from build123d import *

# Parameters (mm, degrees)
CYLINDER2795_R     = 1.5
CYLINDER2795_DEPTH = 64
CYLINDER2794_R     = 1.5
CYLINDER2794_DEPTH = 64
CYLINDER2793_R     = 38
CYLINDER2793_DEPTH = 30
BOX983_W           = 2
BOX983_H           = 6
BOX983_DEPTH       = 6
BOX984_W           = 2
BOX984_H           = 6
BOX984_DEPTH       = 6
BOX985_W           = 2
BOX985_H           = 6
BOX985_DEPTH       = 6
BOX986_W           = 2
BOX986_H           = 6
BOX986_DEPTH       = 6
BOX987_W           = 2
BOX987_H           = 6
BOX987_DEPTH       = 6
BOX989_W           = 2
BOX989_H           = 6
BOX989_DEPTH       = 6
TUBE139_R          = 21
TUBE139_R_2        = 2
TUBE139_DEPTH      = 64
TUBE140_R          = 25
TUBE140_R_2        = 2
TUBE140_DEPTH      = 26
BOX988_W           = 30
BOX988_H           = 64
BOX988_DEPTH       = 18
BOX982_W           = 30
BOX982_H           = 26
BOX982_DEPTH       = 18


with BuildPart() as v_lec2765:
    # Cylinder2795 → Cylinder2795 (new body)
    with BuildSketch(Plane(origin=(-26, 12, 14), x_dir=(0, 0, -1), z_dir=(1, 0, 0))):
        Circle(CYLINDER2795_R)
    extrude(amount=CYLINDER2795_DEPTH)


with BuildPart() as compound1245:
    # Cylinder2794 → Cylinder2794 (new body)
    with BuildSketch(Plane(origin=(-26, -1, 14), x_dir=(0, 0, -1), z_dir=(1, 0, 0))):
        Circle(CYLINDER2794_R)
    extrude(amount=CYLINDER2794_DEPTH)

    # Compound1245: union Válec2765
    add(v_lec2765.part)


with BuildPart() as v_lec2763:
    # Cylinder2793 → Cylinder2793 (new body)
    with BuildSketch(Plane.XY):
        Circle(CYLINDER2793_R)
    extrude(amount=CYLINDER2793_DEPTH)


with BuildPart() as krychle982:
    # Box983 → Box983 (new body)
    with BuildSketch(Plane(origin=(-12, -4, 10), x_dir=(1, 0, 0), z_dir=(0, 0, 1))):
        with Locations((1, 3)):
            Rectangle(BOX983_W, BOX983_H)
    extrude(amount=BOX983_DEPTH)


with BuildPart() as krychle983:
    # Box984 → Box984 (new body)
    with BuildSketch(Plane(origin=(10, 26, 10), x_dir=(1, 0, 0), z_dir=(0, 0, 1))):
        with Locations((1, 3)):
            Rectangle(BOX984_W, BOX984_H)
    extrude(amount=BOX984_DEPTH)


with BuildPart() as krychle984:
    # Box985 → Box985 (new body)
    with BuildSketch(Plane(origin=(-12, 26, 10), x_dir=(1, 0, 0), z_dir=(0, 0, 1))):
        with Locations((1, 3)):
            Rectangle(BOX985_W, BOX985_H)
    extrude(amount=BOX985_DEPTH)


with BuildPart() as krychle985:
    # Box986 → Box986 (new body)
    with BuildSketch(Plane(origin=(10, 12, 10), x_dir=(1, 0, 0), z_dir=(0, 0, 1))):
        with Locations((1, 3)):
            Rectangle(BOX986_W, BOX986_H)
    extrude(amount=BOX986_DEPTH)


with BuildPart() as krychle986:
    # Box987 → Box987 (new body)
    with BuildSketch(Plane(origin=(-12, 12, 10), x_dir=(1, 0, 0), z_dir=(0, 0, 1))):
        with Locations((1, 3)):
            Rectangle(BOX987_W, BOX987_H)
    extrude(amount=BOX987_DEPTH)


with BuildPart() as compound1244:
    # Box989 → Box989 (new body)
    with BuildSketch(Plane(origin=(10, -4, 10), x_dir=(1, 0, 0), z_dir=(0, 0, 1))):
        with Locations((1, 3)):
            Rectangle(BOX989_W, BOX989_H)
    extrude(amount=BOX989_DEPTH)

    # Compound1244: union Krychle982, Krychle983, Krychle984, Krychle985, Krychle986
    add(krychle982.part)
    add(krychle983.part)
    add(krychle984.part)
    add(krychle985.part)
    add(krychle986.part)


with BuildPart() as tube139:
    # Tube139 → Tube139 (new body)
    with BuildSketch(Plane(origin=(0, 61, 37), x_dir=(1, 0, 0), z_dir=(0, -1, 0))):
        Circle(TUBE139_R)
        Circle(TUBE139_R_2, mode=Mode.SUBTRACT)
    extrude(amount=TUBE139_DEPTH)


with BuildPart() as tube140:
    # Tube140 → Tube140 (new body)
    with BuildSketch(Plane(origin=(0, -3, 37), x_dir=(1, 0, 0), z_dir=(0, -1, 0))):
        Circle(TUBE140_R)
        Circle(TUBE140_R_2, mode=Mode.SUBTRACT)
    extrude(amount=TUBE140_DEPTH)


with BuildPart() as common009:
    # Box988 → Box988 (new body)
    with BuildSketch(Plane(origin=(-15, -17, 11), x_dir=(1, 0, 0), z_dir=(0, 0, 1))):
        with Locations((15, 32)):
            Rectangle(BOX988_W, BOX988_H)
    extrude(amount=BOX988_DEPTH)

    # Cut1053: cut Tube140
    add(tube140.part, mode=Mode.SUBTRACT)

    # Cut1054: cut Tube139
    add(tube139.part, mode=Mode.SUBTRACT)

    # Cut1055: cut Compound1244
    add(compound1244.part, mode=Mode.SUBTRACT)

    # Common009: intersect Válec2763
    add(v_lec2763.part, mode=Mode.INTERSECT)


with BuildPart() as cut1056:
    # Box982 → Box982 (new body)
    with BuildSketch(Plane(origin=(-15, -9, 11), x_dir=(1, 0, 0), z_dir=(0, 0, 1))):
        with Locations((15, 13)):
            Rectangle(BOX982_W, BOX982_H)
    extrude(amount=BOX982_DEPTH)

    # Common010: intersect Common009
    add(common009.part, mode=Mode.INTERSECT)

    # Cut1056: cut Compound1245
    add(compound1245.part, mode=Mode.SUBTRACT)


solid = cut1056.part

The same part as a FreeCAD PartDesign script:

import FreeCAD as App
import Part
import Sketcher

doc = App.newDocument("Part")
body = doc.addObject("PartDesign::Body", "Body")

# Sketch on YZ plane
sketch1 = body.newObject("Sketcher::SketchObject", "Sketch")
sketch1.AttachmentSupport = (doc.getObject("YZ_Plane"), [""])
sketch1.MapMode = "FlatFace"
sketch1.AttachmentOffset = App.Placement(App.Vector(0, 0, -26), App.Rotation())
sketch1.addGeometry(Part.Circle(App.Vector(12, 14, 0), App.Vector(0, 0, 1), 1.5), False)
sketch1.addConstraint(Sketcher.Constraint("Diameter", 0, 3.0))
sketch1.addConstraint(Sketcher.Constraint("DistanceX", -1, 1, 0, 3, 12.0))
sketch1.addConstraint(Sketcher.Constraint("DistanceY", -1, 1, 0, 3, 14.0))
pad1 = body.newObject("PartDesign::Pad", "Pad")
pad1.Profile = sketch1
pad1.Length = 64
body2 = doc.addObject("PartDesign::Body", "Body001")
body2.AllowCompound = True

# Sketch on YZ plane
sketch2 = body2.newObject("Sketcher::SketchObject", "Sketch001")
sketch2.AttachmentSupport = (doc.getObject("YZ_Plane001"), [""])
sketch2.MapMode = "FlatFace"
sketch2.AttachmentOffset = App.Placement(App.Vector(0, 0, -26), App.Rotation())
sketch2.addGeometry(Part.Circle(App.Vector(-1, 14, 0), App.Vector(0, 0, 1), 1.5), False)
sketch2.addConstraint(Sketcher.Constraint("Diameter", 0, 3.0))
sketch2.addConstraint(Sketcher.Constraint("DistanceX", 0, 3, -1, 1, 1.0))
sketch2.addConstraint(Sketcher.Constraint("DistanceY", -1, 1, 0, 3, 14.0))
pad2 = body2.newObject("PartDesign::Pad", "Pad001")
pad2.Profile = sketch2
pad2.Length = 64
doc.recompute()

boolean = body2.newObject("PartDesign::Boolean", "Boolean")
boolean.Type = "Fuse"
boolean.addObjects([body])
body3 = doc.addObject("PartDesign::Body", "Body002")

# Sketch on XY plane
sketch3 = body3.newObject("Sketcher::SketchObject", "Sketch002")
sketch3.AttachmentSupport = (doc.getObject("XY_Plane002"), [""])
sketch3.MapMode = "FlatFace"
sketch3.addGeometry(Part.Circle(App.Vector(0, 0, 0), App.Vector(0, 0, 1), 38), False)
sketch3.addConstraint(Sketcher.Constraint("Coincident", 0, 3, -1, 1))
sketch3.addConstraint(Sketcher.Constraint("Diameter", 0, 76.0))
pad3 = body3.newObject("PartDesign::Pad", "Pad002")
pad3.Profile = sketch3
pad3.Length = 30
body4 = doc.addObject("PartDesign::Body", "Body003")

# Sketch on XY plane
sketch4 = body4.newObject("Sketcher::SketchObject", "Sketch003")
sketch4.AttachmentSupport = (doc.getObject("XY_Plane003"), [""])
sketch4.MapMode = "FlatFace"
sketch4.AttachmentOffset = App.Placement(App.Vector(0, 0, 10), App.Rotation())
sketch4.addGeometry(Part.LineSegment(App.Vector(-12, 2, 0), App.Vector(-12, -4, 0)), False)
sketch4.addGeometry(Part.LineSegment(App.Vector(-12, -4, 0), App.Vector(-10, -4, 0)), False)
sketch4.addGeometry(Part.LineSegment(App.Vector(-10, -4, 0), App.Vector(-10, 2, 0)), False)
sketch4.addGeometry(Part.LineSegment(App.Vector(-10, 2, 0), App.Vector(-12, 2, 0)), False)
sketch4.addConstraint(Sketcher.Constraint("Coincident", 0, 2, 1, 1))
sketch4.addConstraint(Sketcher.Constraint("Coincident", 1, 2, 2, 1))
sketch4.addConstraint(Sketcher.Constraint("Coincident", 2, 2, 3, 1))
sketch4.addConstraint(Sketcher.Constraint("Coincident", 3, 2, 0, 1))
sketch4.addConstraint(Sketcher.Constraint("Vertical", 0))
sketch4.addConstraint(Sketcher.Constraint("Horizontal", 1))
sketch4.addConstraint(Sketcher.Constraint("Vertical", 2))
sketch4.addConstraint(Sketcher.Constraint("Horizontal", 3))
sketch4.addConstraint(Sketcher.Constraint("DistanceX", 1, 1, 1, 2, 2.0))
sketch4.addConstraint(Sketcher.Constraint("DistanceY", 0, 2, 0, 1, 6.0))
sketch4.addConstraint(Sketcher.Constraint("DistanceX", 0, 2, -1, 1, 12.0))
sketch4.addConstraint(Sketcher.Constraint("DistanceY", 0, 2, -1, 1, 4.0))
pad4 = body4.newObject("PartDesign::Pad", "Pad003")
pad4.Profile = sketch4
pad4.Length = 6
body5 = doc.addObject("PartDesign::Body", "Body004")

# Sketch on XY plane
sketch5 = body5.newObject("Sketcher::SketchObject", "Sketch004")
sketch5.AttachmentSupport = (doc.getObject("XY_Plane004"), [""])
sketch5.MapMode = "FlatFace"
sketch5.AttachmentOffset = App.Placement(App.Vector(0, 0, 10), App.Rotation())
sketch5.addGeometry(Part.LineSegment(App.Vector(10, 32, 0), App.Vector(10, 26, 0)), False)
sketch5.addGeometry(Part.LineSegment(App.Vector(10, 26, 0), App.Vector(12, 26, 0)), False)
sketch5.addGeometry(Part.LineSegment(App.Vector(12, 26, 0), App.Vector(12, 32, 0)), False)
sketch5.addGeometry(Part.LineSegment(App.Vector(12, 32, 0), App.Vector(10, 32, 0)), False)
sketch5.addConstraint(Sketcher.Constraint("Coincident", 0, 2, 1, 1))
sketch5.addConstraint(Sketcher.Constraint("Coincident", 1, 2, 2, 1))
sketch5.addConstraint(Sketcher.Constraint("Coincident", 2, 2, 3, 1))
sketch5.addConstraint(Sketcher.Constraint("Coincident", 3, 2, 0, 1))
sketch5.addConstraint(Sketcher.Constraint("Vertical", 0))
sketch5.addConstraint(Sketcher.Constraint("Horizontal", 1))
sketch5.addConstraint(Sketcher.Constraint("Vertical", 2))
sketch5.addConstraint(Sketcher.Constraint("Horizontal", 3))
sketch5.addConstraint(Sketcher.Constraint("DistanceX", 1, 1, 1, 2, 2.0))
sketch5.addConstraint(Sketcher.Constraint("DistanceY", 0, 2, 0, 1, 6.0))
sketch5.addConstraint(Sketcher.Constraint("DistanceX", -1, 1, 0, 2, 10.0))
sketch5.addConstraint(Sketcher.Constraint("DistanceY", -1, 1, 0, 2, 26.0))
pad5 = body5.newObject("PartDesign::Pad", "Pad004")
pad5.Profile = sketch5
pad5.Length = 6
body6 = doc.addObject("PartDesign::Body", "Body005")

# Sketch on XY plane
sketch6 = body6.newObject("Sketcher::SketchObject", "Sketch005")
sketch6.AttachmentSupport = (doc.getObject("XY_Plane005"), [""])
sketch6.MapMode = "FlatFace"
sketch6.AttachmentOffset = App.Placement(App.Vector(0, 0, 10), App.Rotation())
sketch6.addGeometry(Part.LineSegment(App.Vector(-12, 32, 0), App.Vector(-12, 26, 0)), False)
sketch6.addGeometry(Part.LineSegment(App.Vector(-12, 26, 0), App.Vector(-10, 26, 0)), False)
sketch6.addGeometry(Part.LineSegment(App.Vector(-10, 26, 0), App.Vector(-10, 32, 0)), False)
sketch6.addGeometry(Part.LineSegment(App.Vector(-10, 32, 0), App.Vector(-12, 32, 0)), False)
sketch6.addConstraint(Sketcher.Constraint("Coincident", 0, 2, 1, 1))
sketch6.addConstraint(Sketcher.Constraint("Coincident", 1, 2, 2, 1))
sketch6.addConstraint(Sketcher.Constraint("Coincident", 2, 2, 3, 1))
sketch6.addConstraint(Sketcher.Constraint("Coincident", 3, 2, 0, 1))
sketch6.addConstraint(Sketcher.Constraint("Vertical", 0))
sketch6.addConstraint(Sketcher.Constraint("Horizontal", 1))
sketch6.addConstraint(Sketcher.Constraint("Vertical", 2))
sketch6.addConstraint(Sketcher.Constraint("Horizontal", 3))
sketch6.addConstraint(Sketcher.Constraint("DistanceX", 1, 1, 1, 2, 2.0))
sketch6.addConstraint(Sketcher.Constraint("DistanceY", 0, 2, 0, 1, 6.0))
sketch6.addConstraint(Sketcher.Constraint("DistanceX", 0, 2, -1, 1, 12.0))
sketch6.addConstraint(Sketcher.Constraint("DistanceY", -1, 1, 0, 2, 26.0))
pad6 = body6.newObject("PartDesign::Pad", "Pad005")
pad6.Profile = sketch6
pad6.Length = 6
body7 = doc.addObject("PartDesign::Body", "Body006")

# Sketch on XY plane
sketch7 = body7.newObject("Sketcher::SketchObject", "Sketch006")
sketch7.AttachmentSupport = (doc.getObject("XY_Plane006"), [""])
sketch7.MapMode = "FlatFace"
sketch7.AttachmentOffset = App.Placement(App.Vector(0, 0, 10), App.Rotation())
sketch7.addGeometry(Part.LineSegment(App.Vector(10, 18, 0), App.Vector(10, 12, 0)), False)
sketch7.addGeometry(Part.LineSegment(App.Vector(10, 12, 0), App.Vector(12, 12, 0)), False)
sketch7.addGeometry(Part.LineSegment(App.Vector(12, 12, 0), App.Vector(12, 18, 0)), False)
sketch7.addGeometry(Part.LineSegment(App.Vector(12, 18, 0), App.Vector(10, 18, 0)), False)
sketch7.addConstraint(Sketcher.Constraint("Coincident", 0, 2, 1, 1))
sketch7.addConstraint(Sketcher.Constraint("Coincident", 1, 2, 2, 1))
sketch7.addConstraint(Sketcher.Constraint("Coincident", 2, 2, 3, 1))
sketch7.addConstraint(Sketcher.Constraint("Coincident", 3, 2, 0, 1))
sketch7.addConstraint(Sketcher.Constraint("Vertical", 0))
sketch7.addConstraint(Sketcher.Constraint("Horizontal", 1))
sketch7.addConstraint(Sketcher.Constraint("Vertical", 2))
sketch7.addConstraint(Sketcher.Constraint("Horizontal", 3))
sketch7.addConstraint(Sketcher.Constraint("DistanceX", 1, 1, 1, 2, 2.0))
sketch7.addConstraint(Sketcher.Constraint("DistanceY", 0, 2, 0, 1, 6.0))
sketch7.addConstraint(Sketcher.Constraint("DistanceX", -1, 1, 0, 2, 10.0))
sketch7.addConstraint(Sketcher.Constraint("DistanceY", -1, 1, 0, 2, 12.0))
pad7 = body7.newObject("PartDesign::Pad", "Pad006")
pad7.Profile = sketch7
pad7.Length = 6
body8 = doc.addObject("PartDesign::Body", "Body007")

# Sketch on XY plane
sketch8 = body8.newObject("Sketcher::SketchObject", "Sketch007")
sketch8.AttachmentSupport = (doc.getObject("XY_Plane007"), [""])
sketch8.MapMode = "FlatFace"
sketch8.AttachmentOffset = App.Placement(App.Vector(0, 0, 10), App.Rotation())
sketch8.addGeometry(Part.LineSegment(App.Vector(-12, 18, 0), App.Vector(-12, 12, 0)), False)
sketch8.addGeometry(Part.LineSegment(App.Vector(-12, 12, 0), App.Vector(-10, 12, 0)), False)
sketch8.addGeometry(Part.LineSegment(App.Vector(-10, 12, 0), App.Vector(-10, 18, 0)), False)
sketch8.addGeometry(Part.LineSegment(App.Vector(-10, 18, 0), App.Vector(-12, 18, 0)), False)
sketch8.addConstraint(Sketcher.Constraint("Coincident", 0, 2, 1, 1))
sketch8.addConstraint(Sketcher.Constraint("Coincident", 1, 2, 2, 1))
sketch8.addConstraint(Sketcher.Constraint("Coincident", 2, 2, 3, 1))
sketch8.addConstraint(Sketcher.Constraint("Coincident", 3, 2, 0, 1))
sketch8.addConstraint(Sketcher.Constraint("Vertical", 0))
sketch8.addConstraint(Sketcher.Constraint("Horizontal", 1))
sketch8.addConstraint(Sketcher.Constraint("Vertical", 2))
sketch8.addConstraint(Sketcher.Constraint("Horizontal", 3))
sketch8.addConstraint(Sketcher.Constraint("DistanceX", 1, 1, 1, 2, 2.0))
sketch8.addConstraint(Sketcher.Constraint("DistanceY", 0, 2, 0, 1, 6.0))
sketch8.addConstraint(Sketcher.Constraint("DistanceX", 0, 2, -1, 1, 12.0))
sketch8.addConstraint(Sketcher.Constraint("DistanceY", -1, 1, 0, 2, 12.0))
pad8 = body8.newObject("PartDesign::Pad", "Pad007")
pad8.Profile = sketch8
pad8.Length = 6
body9 = doc.addObject("PartDesign::Body", "Body008")
body9.AllowCompound = True

# Sketch on XY plane
sketch9 = body9.newObject("Sketcher::SketchObject", "Sketch008")
sketch9.AttachmentSupport = (doc.getObject("XY_Plane008"), [""])
sketch9.MapMode = "FlatFace"
sketch9.AttachmentOffset = App.Placement(App.Vector(0, 0, 10), App.Rotation())
sketch9.addGeometry(Part.LineSegment(App.Vector(10, 2, 0), App.Vector(10, -4, 0)), False)
sketch9.addGeometry(Part.LineSegment(App.Vector(10, -4, 0), App.Vector(12, -4, 0)), False)
sketch9.addGeometry(Part.LineSegment(App.Vector(12, -4, 0), App.Vector(12, 2, 0)), False)
sketch9.addGeometry(Part.LineSegment(App.Vector(12, 2, 0), App.Vector(10, 2, 0)), False)
sketch9.addConstraint(Sketcher.Constraint("Coincident", 0, 2, 1, 1))
sketch9.addConstraint(Sketcher.Constraint("Coincident", 1, 2, 2, 1))
sketch9.addConstraint(Sketcher.Constraint("Coincident", 2, 2, 3, 1))
sketch9.addConstraint(Sketcher.Constraint("Coincident", 3, 2, 0, 1))
sketch9.addConstraint(Sketcher.Constraint("Vertical", 0))
sketch9.addConstraint(Sketcher.Constraint("Horizontal", 1))
sketch9.addConstraint(Sketcher.Constraint("Vertical", 2))
sketch9.addConstraint(Sketcher.Constraint("Horizontal", 3))
sketch9.addConstraint(Sketcher.Constraint("DistanceX", 1, 1, 1, 2, 2.0))
sketch9.addConstraint(Sketcher.Constraint("DistanceY", 0, 2, 0, 1, 6.0))
sketch9.addConstraint(Sketcher.Constraint("DistanceX", -1, 1, 0, 2, 10.0))
sketch9.addConstraint(Sketcher.Constraint("DistanceY", 0, 2, -1, 1, 4.0))
pad9 = body9.newObject("PartDesign::Pad", "Pad008")
pad9.Profile = sketch9
pad9.Length = 6
doc.recompute()

boolean2 = body9.newObject("PartDesign::Boolean", "Boolean001")
boolean2.Type = "Fuse"
boolean2.addObjects([body4])
doc.recompute()

boolean3 = body9.newObject("PartDesign::Boolean", "Boolean002")
boolean3.Type = "Fuse"
boolean3.addObjects([body5])
doc.recompute()

boolean4 = body9.newObject("PartDesign::Boolean", "Boolean003")
boolean4.Type = "Fuse"
boolean4.addObjects([body6])
doc.recompute()

boolean5 = body9.newObject("PartDesign::Boolean", "Boolean004")
boolean5.Type = "Fuse"
boolean5.addObjects([body7])
doc.recompute()

boolean6 = body9.newObject("PartDesign::Boolean", "Boolean005")
boolean6.Type = "Fuse"
boolean6.addObjects([body8])
body10 = doc.addObject("PartDesign::Body", "Body009")

# Sketch on XZ plane
sketch10 = body10.newObject("Sketcher::SketchObject", "Sketch009")
sketch10.AttachmentSupport = (doc.getObject("XZ_Plane009"), [""])
sketch10.MapMode = "FlatFace"
sketch10.AttachmentOffset = App.Placement(App.Vector(0, 0, -61), App.Rotation())
sketch10.addGeometry(Part.Circle(App.Vector(0, 37, 0), App.Vector(0, 0, 1), 21), False)
sketch10.addGeometry(Part.Circle(App.Vector(0, 37, 0), App.Vector(0, 0, 1), 2), False)
sketch10.addConstraint(Sketcher.Constraint("Coincident", 1, 3, 0, 3))
sketch10.addConstraint(Sketcher.Constraint("PointOnObject", 0, 3, -2))
sketch10.addConstraint(Sketcher.Constraint("Diameter", 0, 42.0))
sketch10.addConstraint(Sketcher.Constraint("Diameter", 1, 4.0))
sketch10.addConstraint(Sketcher.Constraint("DistanceY", -1, 1, 0, 3, 37.0))
pad10 = body10.newObject("PartDesign::Pad", "Pad009")
pad10.Profile = sketch10
pad10.Length = 64
body11 = doc.addObject("PartDesign::Body", "Body010")

# Sketch on XZ plane
sketch11 = body11.newObject("Sketcher::SketchObject", "Sketch010")
sketch11.AttachmentSupport = (doc.getObject("XZ_Plane010"), [""])
sketch11.MapMode = "FlatFace"
sketch11.AttachmentOffset = App.Placement(App.Vector(0, 0, 3), App.Rotation())
sketch11.addGeometry(Part.Circle(App.Vector(0, 37, 0), App.Vector(0, 0, 1), 25), False)
sketch11.addGeometry(Part.Circle(App.Vector(0, 37, 0), App.Vector(0, 0, 1), 2), False)
sketch11.addConstraint(Sketcher.Constraint("Coincident", 1, 3, 0, 3))
sketch11.addConstraint(Sketcher.Constraint("PointOnObject", 0, 3, -2))
sketch11.addConstraint(Sketcher.Constraint("Diameter", 0, 50.0))
sketch11.addConstraint(Sketcher.Constraint("Diameter", 1, 4.0))
sketch11.addConstraint(Sketcher.Constraint("DistanceY", -1, 1, 0, 3, 37.0))
pad11 = body11.newObject("PartDesign::Pad", "Pad010")
pad11.Profile = sketch11
pad11.Length = 26
body12 = doc.addObject("PartDesign::Body", "Body011")

# Sketch on XY plane
sketch12 = body12.newObject("Sketcher::SketchObject", "Sketch011")
sketch12.AttachmentSupport = (doc.getObject("XY_Plane011"), [""])
sketch12.MapMode = "FlatFace"
sketch12.AttachmentOffset = App.Placement(App.Vector(0, 0, 11), App.Rotation())
sketch12.addGeometry(Part.LineSegment(App.Vector(-15, 47, 0), App.Vector(-15, -17, 0)), False)
sketch12.addGeometry(Part.LineSegment(App.Vector(-15, -17, 0), App.Vector(15, -17, 0)), False)
sketch12.addGeometry(Part.LineSegment(App.Vector(15, -17, 0), App.Vector(15, 47, 0)), False)
sketch12.addGeometry(Part.LineSegment(App.Vector(15, 47, 0), App.Vector(-15, 47, 0)), False)
sketch12.addConstraint(Sketcher.Constraint("Coincident", 0, 2, 1, 1))
sketch12.addConstraint(Sketcher.Constraint("Coincident", 1, 2, 2, 1))
sketch12.addConstraint(Sketcher.Constraint("Coincident", 2, 2, 3, 1))
sketch12.addConstraint(Sketcher.Constraint("Coincident", 3, 2, 0, 1))
sketch12.addConstraint(Sketcher.Constraint("Vertical", 0))
sketch12.addConstraint(Sketcher.Constraint("Horizontal", 1))
sketch12.addConstraint(Sketcher.Constraint("Vertical", 2))
sketch12.addConstraint(Sketcher.Constraint("Horizontal", 3))
sketch12.addConstraint(Sketcher.Constraint("DistanceX", 1, 1, 1, 2, 30.0))
sketch12.addConstraint(Sketcher.Constraint("DistanceY", 0, 2, 0, 1, 64.0))
sketch12.addConstraint(Sketcher.Constraint("DistanceX", 0, 2, -1, 1, 15.0))
sketch12.addConstraint(Sketcher.Constraint("DistanceY", 0, 2, -1, 1, 17.0))
pad12 = body12.newObject("PartDesign::Pad", "Pad011")
pad12.Profile = sketch12
pad12.Length = 18
doc.recompute()

boolean7 = body12.newObject("PartDesign::Boolean", "Boolean006")
boolean7.Type = "Cut"
boolean7.addObjects([body11])
doc.recompute()

boolean8 = body12.newObject("PartDesign::Boolean", "Boolean007")
boolean8.Type = "Cut"
boolean8.addObjects([body10])
doc.recompute()

boolean9 = body12.newObject("PartDesign::Boolean", "Boolean008")
boolean9.Type = "Cut"
boolean9.addObjects([body9])
doc.recompute()

boolean10 = body12.newObject("PartDesign::Boolean", "Boolean009")
boolean10.Type = "Common"
boolean10.addObjects([body3])
body13 = doc.addObject("PartDesign::Body", "Body012")

# Sketch on XY plane
sketch13 = body13.newObject("Sketcher::SketchObject", "Sketch012")
sketch13.AttachmentSupport = (doc.getObject("XY_Plane012"), [""])
sketch13.MapMode = "FlatFace"
sketch13.AttachmentOffset = App.Placement(App.Vector(0, 0, 11), App.Rotation())
sketch13.addGeometry(Part.LineSegment(App.Vector(-15, 17, 0), App.Vector(-15, -9, 0)), False)
sketch13.addGeometry(Part.LineSegment(App.Vector(-15, -9, 0), App.Vector(15, -9, 0)), False)
sketch13.addGeometry(Part.LineSegment(App.Vector(15, -9, 0), App.Vector(15, 17, 0)), False)
sketch13.addGeometry(Part.LineSegment(App.Vector(15, 17, 0), App.Vector(-15, 17, 0)), False)
sketch13.addConstraint(Sketcher.Constraint("Coincident", 0, 2, 1, 1))
sketch13.addConstraint(Sketcher.Constraint("Coincident", 1, 2, 2, 1))
sketch13.addConstraint(Sketcher.Constraint("Coincident", 2, 2, 3, 1))
sketch13.addConstraint(Sketcher.Constraint("Coincident", 3, 2, 0, 1))
sketch13.addConstraint(Sketcher.Constraint("Vertical", 0))
sketch13.addConstraint(Sketcher.Constraint("Horizontal", 1))
sketch13.addConstraint(Sketcher.Constraint("Vertical", 2))
sketch13.addConstraint(Sketcher.Constraint("Horizontal", 3))
sketch13.addConstraint(Sketcher.Constraint("DistanceX", 1, 1, 1, 2, 30.0))
sketch13.addConstraint(Sketcher.Constraint("DistanceY", 0, 2, 0, 1, 26.0))
sketch13.addConstraint(Sketcher.Constraint("DistanceX", 0, 2, -1, 1, 15.0))
sketch13.addConstraint(Sketcher.Constraint("DistanceY", 0, 2, -1, 1, 9.0))
pad13 = body13.newObject("PartDesign::Pad", "Pad012")
pad13.Profile = sketch13
pad13.Length = 18
doc.recompute()

boolean11 = body13.newObject("PartDesign::Boolean", "Boolean010")
boolean11.Type = "Common"
boolean11.addObjects([body12])
doc.recompute()

boolean12 = body13.newObject("PartDesign::Boolean", "Boolean011")
boolean12.Type = "Cut"
boolean12.addObjects([body2])

doc.recompute()
